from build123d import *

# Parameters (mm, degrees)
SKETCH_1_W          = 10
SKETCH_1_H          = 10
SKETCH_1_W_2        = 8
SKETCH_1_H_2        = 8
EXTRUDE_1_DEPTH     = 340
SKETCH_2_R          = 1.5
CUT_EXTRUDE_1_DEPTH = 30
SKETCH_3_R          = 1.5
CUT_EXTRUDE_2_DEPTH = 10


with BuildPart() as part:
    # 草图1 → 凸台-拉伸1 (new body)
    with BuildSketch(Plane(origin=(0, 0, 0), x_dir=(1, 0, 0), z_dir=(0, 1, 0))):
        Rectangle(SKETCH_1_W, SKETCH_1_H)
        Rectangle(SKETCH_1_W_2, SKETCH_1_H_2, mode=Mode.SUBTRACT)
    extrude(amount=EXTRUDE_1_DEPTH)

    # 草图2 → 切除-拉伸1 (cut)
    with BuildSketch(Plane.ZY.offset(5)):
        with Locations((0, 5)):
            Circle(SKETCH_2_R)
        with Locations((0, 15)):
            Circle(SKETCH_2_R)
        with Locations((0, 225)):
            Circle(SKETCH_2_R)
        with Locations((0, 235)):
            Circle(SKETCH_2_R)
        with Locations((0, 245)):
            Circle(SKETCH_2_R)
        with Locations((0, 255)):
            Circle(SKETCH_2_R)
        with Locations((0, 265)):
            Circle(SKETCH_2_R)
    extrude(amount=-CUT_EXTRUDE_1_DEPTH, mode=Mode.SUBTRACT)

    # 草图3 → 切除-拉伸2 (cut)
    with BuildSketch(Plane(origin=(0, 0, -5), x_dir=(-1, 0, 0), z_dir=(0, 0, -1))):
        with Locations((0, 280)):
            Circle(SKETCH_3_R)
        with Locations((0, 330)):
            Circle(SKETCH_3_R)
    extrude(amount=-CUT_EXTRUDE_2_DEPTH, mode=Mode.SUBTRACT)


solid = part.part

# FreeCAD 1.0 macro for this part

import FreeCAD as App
import Part
import Sketcher
from FreeCAD import Vector
Q = App.Units.Quantity


def add_polygon(sketch, points):
    """Adds a closed chain of lines whose ends are joined by coincident constraints."""
    first, n = sketch.GeometryCount, len(points)
    for a, b in zip(points, points[1:] + points[:1]):
        sketch.addGeometry(Part.LineSegment(App.Vector(*a, 0), App.Vector(*b, 0)), False)
    for i in range(n):
        sketch.addConstraint(Sketcher.Constraint("Coincident", first + i, 2, first + (i + 1) % n, 1))

doc = App.newDocument("Part")
body = doc.addObject("PartDesign::Body", "Body")

# Sketch on XZ plane
sketch1 = doc.addObject("Sketcher::SketchObject", "Sketch")
body.addObject(sketch1)
sketch1.AttachmentSupport = (doc.XZ_Plane, [""])
sketch1.MapMode = "FlatFace"
add_polygon(sketch1, [(-5, -5), (-5, 5), (5, 5), (5, -5)])  # lines 0-3
add_polygon(sketch1, [(4, 4), (-4, 4), (-4, -4), (4, -4)])  # lines 4-7
sketch1.addConstraint([
    Sketcher.Constraint("Vertical", 0),
    Sketcher.Constraint("Horizontal", 1),
    Sketcher.Constraint("Vertical", 2),
    Sketcher.Constraint("Horizontal", 3),
    Sketcher.Constraint("Horizontal", 4),
    Sketcher.Constraint("Vertical", 5),
    Sketcher.Constraint("Horizontal", 6),
    Sketcher.Constraint("Vertical", 7),
    Sketcher.Constraint("Symmetric", 0, 2, 2, 2, -1, 1),
    Sketcher.Constraint("Symmetric", 4, 2, 6, 2, -1, 1),
    Sketcher.Constraint("Equal", 3, 0),
    Sketcher.Constraint("Equal", 6, 5),
    Sketcher.Constraint("DistanceX", 1, 1, 1, 2, Q("10 mm")),
    Sketcher.Constraint("DistanceX", 4, 2, 4, 1, Q("8 mm")),
])
pad1 = doc.addObject("PartDesign::Pad", "Pad")
body.addObject(pad1)
pad1.Profile = sketch1
pad1.Length = 340
pad1.Reversed = True

# Sketch on YZ plane
sketch2 = doc.addObject("Sketcher::SketchObject", "Sketch001")
body.addObject(sketch2)
sketch2.AttachmentSupport = (doc.YZ_Plane, [""])
sketch2.MapMode = "FlatFace"
sketch2.AttachmentOffset = App.Placement(Vector(0, 0, -5), App.Rotation())
sketch2.addGeometry([
    Part.Circle(Vector(5, 0, 0), Vector(0, 0, 1), 1.5),  # 0
    Part.Circle(Vector(15, 0, 0), Vector(0, 0, 1), 1.5),  # 1
    Part.Circle(Vector(225, 0, 0), Vector(0, 0, 1), 1.5),  # 2
    Part.Circle(Vector(235, 0, 0), Vector(0, 0, 1), 1.5),  # 3
    Part.Circle(Vector(245, 0, 0), Vector(0, 0, 1), 1.5),  # 4
    Part.Circle(Vector(255, 0, 0), Vector(0, 0, 1), 1.5),  # 5
    Part.Circle(Vector(265, 0, 0), Vector(0, 0, 1), 1.5),  # 6
], False)
sketch2.addConstraint([
    Sketcher.Constraint("Equal", 0, 1),
    Sketcher.Constraint("Equal", 1, 2),
    Sketcher.Constraint("Equal", 2, 3),
    Sketcher.Constraint("Equal", 3, 4),
    Sketcher.Constraint("Equal", 4, 5),
    Sketcher.Constraint("Equal", 5, 6),
    Sketcher.Constraint("PointOnObject", 0, 3, -1),
    Sketcher.Constraint("PointOnObject", 1, 3, -1),
    Sketcher.Constraint("PointOnObject", 2, 3, -1),
    Sketcher.Constraint("PointOnObject", 3, 3, -1),
    Sketcher.Constraint("PointOnObject", 4, 3, -1),
    Sketcher.Constraint("PointOnObject", 5, 3, -1),
    Sketcher.Constraint("PointOnObject", 6, 3, -1),
    Sketcher.Constraint("Diameter", 0, Q("3 mm")),
    Sketcher.Constraint("DistanceX", -1, 1, 0, 3, Q("5 mm")),
    Sketcher.Constraint("DistanceX", -1, 1, 1, 3, Q("15 mm")),
    Sketcher.Constraint("DistanceX", -1, 1, 2, 3, Q("225 mm")),
    Sketcher.Constraint("DistanceX", -1, 1, 3, 3, Q("235 mm")),
    Sketcher.Constraint("DistanceX", -1, 1, 4, 3, Q("245 mm")),
    Sketcher.Constraint("DistanceX", -1, 1, 5, 3, Q("255 mm")),
    Sketcher.Constraint("DistanceX", -1, 1, 6, 3, Q("265 mm")),
])
pocket1 = doc.addObject("PartDesign::Pocket", "Pocket")
body.addObject(pocket1)
pocket1.Profile = sketch2
pocket1.Length = 30
pocket1.Reversed = True

# Sketch on XY plane
sketch3 = doc.addObject("Sketcher::SketchObject", "Sketch002")
body.addObject(sketch3)
sketch3.AttachmentSupport = (doc.XY_Plane, [""])
sketch3.MapMode = "FlatFace"
sketch3.AttachmentOffset = App.Placement(Vector(0, 0, -5), App.Rotation())
sketch3.addGeometry([
    Part.Circle(Vector(0, 280, 0), Vector(0, 0, 1), 1.5),
    Part.Circle(Vector(0, 330, 0), Vector(0, 0, 1), 1.5),
], False)
sketch3.addConstraint([
    Sketcher.Constraint("Equal", 0, 1),
    Sketcher.Constraint("PointOnObject", 0, 3, -2),
    Sketcher.Constraint("PointOnObject", 1, 3, -2),
    Sketcher.Constraint("Diameter", 0, Q("3 mm")),
    Sketcher.Constraint("DistanceY", -1, 1, 0, 3, Q("280 mm")),
    Sketcher.Constraint("DistanceY", -1, 1, 1, 3, Q("330 mm")),
])
pocket2 = doc.addObject("PartDesign::Pocket", "Pocket001")
body.addObject(pocket2)
pocket2.Profile = sketch3
pocket2.Length = 10
pocket2.Reversed = True

doc.recompute()
